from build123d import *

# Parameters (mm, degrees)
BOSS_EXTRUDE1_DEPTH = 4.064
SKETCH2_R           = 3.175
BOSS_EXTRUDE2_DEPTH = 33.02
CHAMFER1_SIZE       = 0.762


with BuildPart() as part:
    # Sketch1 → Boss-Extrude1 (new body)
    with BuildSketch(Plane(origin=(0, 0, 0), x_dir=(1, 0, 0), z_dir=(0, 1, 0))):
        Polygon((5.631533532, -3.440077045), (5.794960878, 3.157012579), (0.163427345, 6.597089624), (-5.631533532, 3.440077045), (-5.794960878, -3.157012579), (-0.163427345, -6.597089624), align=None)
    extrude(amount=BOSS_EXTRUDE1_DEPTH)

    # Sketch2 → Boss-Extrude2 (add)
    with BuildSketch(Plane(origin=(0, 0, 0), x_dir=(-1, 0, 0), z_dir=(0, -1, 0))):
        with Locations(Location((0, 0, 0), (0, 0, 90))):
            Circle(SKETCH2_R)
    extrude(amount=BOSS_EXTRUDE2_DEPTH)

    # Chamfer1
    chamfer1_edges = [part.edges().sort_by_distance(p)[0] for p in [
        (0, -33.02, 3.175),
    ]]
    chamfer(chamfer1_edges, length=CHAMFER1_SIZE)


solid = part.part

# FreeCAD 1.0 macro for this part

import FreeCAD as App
import Part
import Sketcher

V = App.Vector
Q = App.Units.Quantity


def edges_at(feature, points):
    """Names of the edges that pass closest to the given points."""
    edges = feature.Shape.Edges
    near = lambda p: min(range(len(edges)), key=lambda i: edges[i].distToShape(Part.Vertex(*p))[0])
    return sorted({f"Edge{near(p) + 1}" for p in points})


def add_polygon(sketch, points):
    """Adds a closed chain of lines whose ends are joined by coincident constraints."""
    first, n = sketch.GeometryCount, len(points)
    for a, b in zip(points, points[1:] + points[:1]):
        sketch.addGeometry(Part.LineSegment(App.Vector(*a, 0), App.Vector(*b, 0)), False)
    for i in range(n):
        sketch.addConstraint(Sketcher.Constraint("Coincident", first + i, 2, first + (i + 1) % n, 1))

doc = App.newDocument("Part")
body = doc.addObject("PartDesign::Body", "Body")

# Sketch on XZ plane
sketch1 = doc.addObject("Sketcher::SketchObject", "Sketch")
body.addObject(sketch1)
sketch1.AttachmentSupport = (doc.XZ_Plane, [""])
sketch1.MapMode = "FlatFace"
add_polygon(sketch1, [(6, 3), (6, -3), (0, -7), (-6, -3), (-6, 3), (0, 7)])  # lines 0-5
sketch1.addConstraint([
    Sketcher.Constraint("Symmetric", 0, 2, 3, 2, -1, 1),
    Sketcher.Constraint("Symmetric", 1, 2, 4, 2, -1, 1),
    Sketcher.Constraint("Symmetric", 2, 2, 5, 2, -1, 1),
    Sketcher.Constraint("Equal", 0, 1),
    Sketcher.Constraint("Equal", 1, 2),
    Sketcher.Constraint("DistanceX", -1, 1, 0, 2, Q("5.794961 mm")),
    Sketcher.Constraint("DistanceY", 1, 2, -1, 1, Q("6.59709 mm")),
    Sketcher.Constraint("DistanceX", 2, 2, 1, 2, Q("5.794961 mm")),
    Sketcher.Constraint("DistanceY", 2, 2, 3, 2, Q("6.59709 mm")),
])
pad1 = doc.addObject("PartDesign::Pad", "Pad")
body.addObject(pad1)
pad1.Profile = sketch1
pad1.Length = Q("0.16 in")
pad1.Reversed = True

# Sketch on XZ plane
sketch2 = doc.addObject("Sketcher::SketchObject", "Sketch001")
body.addObject(sketch2)
sketch2.AttachmentSupport = (doc.XZ_Plane, [""])
sketch2.MapMode = "FlatFace"
sketch2.addGeometry(Part.Circle(V(0, 0, 0), V(0, 0, 1), 3.2), False)
sketch2.addConstraint([
    Sketcher.Constraint("Coincident", 0, 3, -1, 1),
    Sketcher.Constraint("Diameter", 0, Q("0.25 in")),
])
pad2 = doc.addObject("PartDesign::Pad", "Pad001")
body.addObject(pad2)
pad2.Profile = sketch2
pad2.Length = Q("1.3 in")
doc.recompute()

chamfer = doc.addObject("PartDesign::Chamfer", "Chamfer")
body.addObject(chamfer)
chamfer.Base = (pad2, edges_at(pad2, [(0, -33.02, 3.175)]))
chamfer.Size = Q("0.03 in")

doc.recompute()
